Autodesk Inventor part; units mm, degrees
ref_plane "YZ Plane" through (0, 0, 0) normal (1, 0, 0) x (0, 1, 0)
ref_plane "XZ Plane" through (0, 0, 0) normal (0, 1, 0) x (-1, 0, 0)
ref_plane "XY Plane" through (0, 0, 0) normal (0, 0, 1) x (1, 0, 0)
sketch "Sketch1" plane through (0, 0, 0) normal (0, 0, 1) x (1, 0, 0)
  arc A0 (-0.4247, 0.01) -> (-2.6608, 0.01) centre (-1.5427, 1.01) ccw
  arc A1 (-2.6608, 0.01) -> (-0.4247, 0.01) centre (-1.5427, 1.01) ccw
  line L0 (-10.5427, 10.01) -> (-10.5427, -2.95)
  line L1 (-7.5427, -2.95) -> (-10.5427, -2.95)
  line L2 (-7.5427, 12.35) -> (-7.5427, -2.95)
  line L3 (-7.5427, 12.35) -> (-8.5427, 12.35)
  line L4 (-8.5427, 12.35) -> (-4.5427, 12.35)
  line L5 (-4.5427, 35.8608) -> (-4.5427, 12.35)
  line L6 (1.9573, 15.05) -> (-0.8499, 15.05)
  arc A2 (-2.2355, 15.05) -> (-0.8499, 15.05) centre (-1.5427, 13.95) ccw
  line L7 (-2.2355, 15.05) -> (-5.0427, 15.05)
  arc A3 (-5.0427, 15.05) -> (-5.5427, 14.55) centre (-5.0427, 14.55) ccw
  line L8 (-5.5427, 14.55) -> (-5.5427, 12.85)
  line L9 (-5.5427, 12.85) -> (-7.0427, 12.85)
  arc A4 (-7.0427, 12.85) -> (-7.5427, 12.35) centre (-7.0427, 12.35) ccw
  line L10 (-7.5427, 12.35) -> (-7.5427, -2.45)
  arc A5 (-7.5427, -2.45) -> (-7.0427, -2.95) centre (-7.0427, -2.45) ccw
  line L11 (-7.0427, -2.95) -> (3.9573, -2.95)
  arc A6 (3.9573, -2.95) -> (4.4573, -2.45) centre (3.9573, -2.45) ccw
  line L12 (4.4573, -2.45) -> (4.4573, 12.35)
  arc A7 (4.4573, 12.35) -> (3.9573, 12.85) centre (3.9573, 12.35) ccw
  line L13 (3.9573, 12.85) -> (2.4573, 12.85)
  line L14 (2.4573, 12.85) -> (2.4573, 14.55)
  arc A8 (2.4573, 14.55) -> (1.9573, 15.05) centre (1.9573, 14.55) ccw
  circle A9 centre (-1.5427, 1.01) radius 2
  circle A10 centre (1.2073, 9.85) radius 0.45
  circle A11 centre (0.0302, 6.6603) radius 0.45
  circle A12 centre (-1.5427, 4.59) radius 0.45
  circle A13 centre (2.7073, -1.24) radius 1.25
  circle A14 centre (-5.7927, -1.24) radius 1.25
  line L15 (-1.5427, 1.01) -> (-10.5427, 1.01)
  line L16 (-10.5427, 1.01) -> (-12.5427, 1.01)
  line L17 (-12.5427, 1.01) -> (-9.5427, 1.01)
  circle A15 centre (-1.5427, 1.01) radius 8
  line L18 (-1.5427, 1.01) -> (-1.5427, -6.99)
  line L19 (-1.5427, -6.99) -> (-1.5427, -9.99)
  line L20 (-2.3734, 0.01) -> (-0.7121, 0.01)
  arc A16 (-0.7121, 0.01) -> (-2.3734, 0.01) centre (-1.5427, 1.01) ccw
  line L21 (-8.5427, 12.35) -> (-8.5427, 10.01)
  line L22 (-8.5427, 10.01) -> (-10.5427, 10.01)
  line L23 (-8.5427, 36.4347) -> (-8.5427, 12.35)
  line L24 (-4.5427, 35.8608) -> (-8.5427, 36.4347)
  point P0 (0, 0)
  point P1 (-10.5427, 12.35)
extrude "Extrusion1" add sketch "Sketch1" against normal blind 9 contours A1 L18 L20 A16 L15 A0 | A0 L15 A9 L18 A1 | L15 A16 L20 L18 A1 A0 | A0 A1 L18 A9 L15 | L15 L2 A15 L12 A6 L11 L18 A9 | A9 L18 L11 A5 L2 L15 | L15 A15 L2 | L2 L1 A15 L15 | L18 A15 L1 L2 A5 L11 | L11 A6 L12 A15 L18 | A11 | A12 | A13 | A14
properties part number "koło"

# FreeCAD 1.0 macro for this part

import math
import FreeCAD as App
import Part
import Sketcher

V = App.Vector

doc = App.newDocument("Part")
params = doc.addObject("Spreadsheet::Sheet", "Params")
for row, (alias, value) in enumerate([
    ("sketch1_diameter", "16 mm"),
    ("sketch1_radius", "1.3 mm"),
    ("pad1_length", "9 mm"),
], start=1):
    params.set(f"A{row}", alias)
    params.set(f"B{row}", "=" + value)
    params.setAlias(f"B{row}", alias)

body = doc.addObject("PartDesign::Body", "Body")

# Sketch on XY plane
sketch1 = doc.addObject("Sketcher::SketchObject", "Sketch")
body.addObject(sketch1)
sketch1.AttachmentSupport = (doc.XY_Plane, [""])
sketch1.MapMode = "FlatFace"
sketch1.addGeometry(Part.Circle(V(-1.5, 1, 0), V(0, 0, 1), 8), False)
sketch1.addGeometry(Part.LineSegment(V(-0.7, 0, 0), V(-2.4, 0, 0)), False)
sketch1.addGeometry(Part.ArcOfCircle(Part.Circle(V(-1.5, 1, 0), V(0, 0, 1), 1.3), math.radians(-50), math.radians(230)), False)
sketch1.addConstraint(Sketcher.Constraint("Coincident", 1, 1, 2, 1))
sketch1.addConstraint(Sketcher.Constraint("Coincident", 2, 2, 1, 2))
sketch1.addConstraint(Sketcher.Constraint("Horizontal", 1))
sketch1.addConstraint(Sketcher.Constraint("Coincident", 2, 3, 0, 3))
sketch1.addConstraint(Sketcher.Constraint("Diameter", 0, 16.0))
sketch1.addConstraint(Sketcher.Constraint("Radius", 2, 1.3))
sketch1.addConstraint(Sketcher.Constraint("DistanceY", 1, 1, 0, 3, 1.0))
sketch1.addConstraint(Sketcher.Constraint("DistanceY", -1, 1, 0, 3, 1.01))
sketch1.addConstraint(Sketcher.Constraint("DistanceX", 1, 1, -1, 1, 0.712))
sketch1.setExpression("Constraints[4]", "Params.sketch1_diameter")
sketch1.setExpression("Constraints[5]", "Params.sketch1_radius")
pad1 = doc.addObject("PartDesign::Pad", "Pad")
body.addObject(pad1)
pad1.Profile = sketch1
pad1.setExpression("Length", "Params.pad1_length")
pad1.Reversed = True

doc.recompute()
